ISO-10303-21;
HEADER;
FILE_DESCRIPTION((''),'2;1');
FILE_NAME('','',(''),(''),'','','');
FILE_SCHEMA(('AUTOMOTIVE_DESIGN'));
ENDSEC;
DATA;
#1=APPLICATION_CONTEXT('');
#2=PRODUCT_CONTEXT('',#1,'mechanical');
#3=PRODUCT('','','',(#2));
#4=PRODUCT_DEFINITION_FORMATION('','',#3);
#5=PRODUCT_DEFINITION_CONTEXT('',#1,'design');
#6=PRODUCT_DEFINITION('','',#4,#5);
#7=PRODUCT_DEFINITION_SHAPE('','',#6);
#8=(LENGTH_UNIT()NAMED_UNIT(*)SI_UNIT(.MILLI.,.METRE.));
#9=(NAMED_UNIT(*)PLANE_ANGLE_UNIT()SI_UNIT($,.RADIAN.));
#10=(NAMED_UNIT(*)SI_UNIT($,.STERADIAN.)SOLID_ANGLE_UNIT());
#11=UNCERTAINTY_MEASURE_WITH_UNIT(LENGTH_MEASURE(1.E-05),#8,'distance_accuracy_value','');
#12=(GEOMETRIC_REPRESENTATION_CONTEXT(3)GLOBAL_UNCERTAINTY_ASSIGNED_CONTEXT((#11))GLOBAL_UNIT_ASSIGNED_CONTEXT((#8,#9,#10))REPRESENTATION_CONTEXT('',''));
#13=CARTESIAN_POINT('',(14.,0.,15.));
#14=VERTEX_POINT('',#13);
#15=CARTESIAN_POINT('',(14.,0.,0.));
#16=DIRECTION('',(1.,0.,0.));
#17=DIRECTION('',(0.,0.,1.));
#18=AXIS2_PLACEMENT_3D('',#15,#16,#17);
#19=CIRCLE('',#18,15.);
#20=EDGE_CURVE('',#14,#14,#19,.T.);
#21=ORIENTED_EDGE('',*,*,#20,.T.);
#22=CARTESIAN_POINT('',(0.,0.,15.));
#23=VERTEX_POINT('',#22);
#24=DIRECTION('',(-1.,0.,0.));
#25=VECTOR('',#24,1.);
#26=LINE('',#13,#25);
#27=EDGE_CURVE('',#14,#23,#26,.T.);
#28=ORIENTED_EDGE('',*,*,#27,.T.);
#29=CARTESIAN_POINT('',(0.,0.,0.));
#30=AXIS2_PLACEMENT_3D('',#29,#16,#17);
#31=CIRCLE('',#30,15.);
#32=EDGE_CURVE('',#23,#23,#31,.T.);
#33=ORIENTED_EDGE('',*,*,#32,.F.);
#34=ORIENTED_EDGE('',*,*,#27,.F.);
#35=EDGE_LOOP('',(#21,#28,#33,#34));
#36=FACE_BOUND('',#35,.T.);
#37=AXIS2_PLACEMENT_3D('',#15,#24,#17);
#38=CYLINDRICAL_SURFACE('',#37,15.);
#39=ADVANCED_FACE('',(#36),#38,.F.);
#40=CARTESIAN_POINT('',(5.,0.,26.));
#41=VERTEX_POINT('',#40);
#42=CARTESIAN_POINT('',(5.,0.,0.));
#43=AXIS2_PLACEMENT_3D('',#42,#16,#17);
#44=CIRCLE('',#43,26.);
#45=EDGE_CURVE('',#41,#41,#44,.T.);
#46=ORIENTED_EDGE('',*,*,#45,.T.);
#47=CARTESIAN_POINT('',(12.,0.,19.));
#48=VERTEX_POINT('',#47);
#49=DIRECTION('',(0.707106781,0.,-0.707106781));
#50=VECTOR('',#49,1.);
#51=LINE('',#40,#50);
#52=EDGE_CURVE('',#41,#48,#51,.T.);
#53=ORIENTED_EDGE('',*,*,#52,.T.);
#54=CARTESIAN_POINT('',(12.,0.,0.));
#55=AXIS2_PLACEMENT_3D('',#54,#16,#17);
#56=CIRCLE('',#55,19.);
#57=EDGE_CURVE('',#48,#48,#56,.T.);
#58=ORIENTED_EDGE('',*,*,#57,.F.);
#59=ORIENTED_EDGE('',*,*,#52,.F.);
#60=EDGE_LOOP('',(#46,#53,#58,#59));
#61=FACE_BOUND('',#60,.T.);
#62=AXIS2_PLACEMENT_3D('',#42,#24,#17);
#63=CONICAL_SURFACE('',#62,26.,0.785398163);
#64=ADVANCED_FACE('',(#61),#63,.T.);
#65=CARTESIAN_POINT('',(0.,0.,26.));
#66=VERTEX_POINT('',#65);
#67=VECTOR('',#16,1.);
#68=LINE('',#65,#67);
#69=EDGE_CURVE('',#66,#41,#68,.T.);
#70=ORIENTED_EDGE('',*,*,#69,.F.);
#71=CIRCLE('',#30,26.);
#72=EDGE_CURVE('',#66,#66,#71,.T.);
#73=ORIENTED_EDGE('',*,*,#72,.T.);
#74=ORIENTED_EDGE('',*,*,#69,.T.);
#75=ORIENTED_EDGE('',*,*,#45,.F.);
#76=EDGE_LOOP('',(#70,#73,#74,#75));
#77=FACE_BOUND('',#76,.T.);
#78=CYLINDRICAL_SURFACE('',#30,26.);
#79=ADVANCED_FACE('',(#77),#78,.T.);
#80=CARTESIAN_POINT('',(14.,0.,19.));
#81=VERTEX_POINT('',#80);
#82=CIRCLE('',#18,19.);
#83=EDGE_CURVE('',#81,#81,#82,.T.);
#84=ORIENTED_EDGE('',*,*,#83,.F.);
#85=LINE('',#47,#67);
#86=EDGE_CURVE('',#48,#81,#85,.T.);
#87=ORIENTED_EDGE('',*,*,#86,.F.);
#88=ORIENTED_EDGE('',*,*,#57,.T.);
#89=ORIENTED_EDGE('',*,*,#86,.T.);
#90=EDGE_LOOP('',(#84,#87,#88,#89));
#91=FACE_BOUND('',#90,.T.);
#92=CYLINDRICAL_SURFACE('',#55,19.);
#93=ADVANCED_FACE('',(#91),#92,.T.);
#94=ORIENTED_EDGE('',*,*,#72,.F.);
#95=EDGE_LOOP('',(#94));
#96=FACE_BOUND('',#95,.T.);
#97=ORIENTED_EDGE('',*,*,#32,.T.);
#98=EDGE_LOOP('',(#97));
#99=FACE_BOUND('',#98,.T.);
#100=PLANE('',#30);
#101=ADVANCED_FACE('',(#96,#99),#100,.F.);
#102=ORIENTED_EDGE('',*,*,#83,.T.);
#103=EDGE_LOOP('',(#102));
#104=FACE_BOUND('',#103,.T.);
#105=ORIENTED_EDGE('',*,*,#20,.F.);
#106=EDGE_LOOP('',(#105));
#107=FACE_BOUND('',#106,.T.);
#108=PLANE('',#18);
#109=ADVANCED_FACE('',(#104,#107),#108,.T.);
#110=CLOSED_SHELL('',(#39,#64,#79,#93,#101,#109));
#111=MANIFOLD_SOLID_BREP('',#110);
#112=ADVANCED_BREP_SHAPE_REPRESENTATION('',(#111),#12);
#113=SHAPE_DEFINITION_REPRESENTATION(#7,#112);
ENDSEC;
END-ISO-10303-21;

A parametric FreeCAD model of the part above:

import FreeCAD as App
import Part
import Sketcher

V = App.Vector
Q = App.Units.Quantity


def add_polygon(sketch, points):
    """Adds a closed chain of lines whose ends are joined by coincident constraints."""
    first, n = sketch.GeometryCount, len(points)
    for a, b in zip(points, points[1:] + points[:1]):
        sketch.addGeometry(Part.LineSegment(App.Vector(*a, 0), App.Vector(*b, 0)), False)
    for i in range(n):
        sketch.addConstraint(Sketcher.Constraint("Coincident", first + i, 2, first + (i + 1) % n, 1))

doc = App.newDocument("Part")
body = doc.addObject("PartDesign::Body", "Body")

# Sketch on XZ plane
sketch1 = body.newObject("Sketcher::SketchObject", "Sketch")
sketch1.AttachmentSupport = (doc.getObject("XZ_Plane"), [""])
sketch1.MapMode = "FlatFace"
add_polygon(sketch1, [(12, 19), (5, 26), (0, 26), (0, 15), (14, 15), (14, 19)])  # lines 0-5
sketch1.addConstraint(Sketcher.Constraint("Horizontal", 1))
sketch1.addConstraint(Sketcher.Constraint("Vertical", 2))
sketch1.addConstraint(Sketcher.Constraint("Horizontal", 3))
sketch1.addConstraint(Sketcher.Constraint("Vertical", 4))
sketch1.addConstraint(Sketcher.Constraint("Horizontal", 5))
sketch1.addConstraint(Sketcher.Constraint("PointOnObject", 1, 2, -2))
sketch1.addConstraint(Sketcher.Constraint("DistanceX", 1, 2, 1, 1, Q("5 mm")))
sketch1.addConstraint(Sketcher.Constraint("DistanceX", 3, 1, 3, 2, Q("14 mm")))
sketch1.addConstraint(Sketcher.Constraint("DistanceX", 5, 2, 5, 1, Q("2 mm")))
sketch1.addConstraint(Sketcher.Constraint("DistanceY", 2, 2, 2, 1, Q("11 mm")))
sketch1.addConstraint(Sketcher.Constraint("DistanceY", 4, 1, 4, 2, Q("4 mm")))
sketch1.addConstraint(Sketcher.Constraint("DistanceY", -1, 1, 0, 2, Q("26 mm")))
revolution = body.newObject("PartDesign::Revolution", "Revolution")
revolution.Profile = sketch1
revolution.ReferenceAxis = (sketch1, ["H_Axis"])
revolution.Angle = 360

doc.recompute()
